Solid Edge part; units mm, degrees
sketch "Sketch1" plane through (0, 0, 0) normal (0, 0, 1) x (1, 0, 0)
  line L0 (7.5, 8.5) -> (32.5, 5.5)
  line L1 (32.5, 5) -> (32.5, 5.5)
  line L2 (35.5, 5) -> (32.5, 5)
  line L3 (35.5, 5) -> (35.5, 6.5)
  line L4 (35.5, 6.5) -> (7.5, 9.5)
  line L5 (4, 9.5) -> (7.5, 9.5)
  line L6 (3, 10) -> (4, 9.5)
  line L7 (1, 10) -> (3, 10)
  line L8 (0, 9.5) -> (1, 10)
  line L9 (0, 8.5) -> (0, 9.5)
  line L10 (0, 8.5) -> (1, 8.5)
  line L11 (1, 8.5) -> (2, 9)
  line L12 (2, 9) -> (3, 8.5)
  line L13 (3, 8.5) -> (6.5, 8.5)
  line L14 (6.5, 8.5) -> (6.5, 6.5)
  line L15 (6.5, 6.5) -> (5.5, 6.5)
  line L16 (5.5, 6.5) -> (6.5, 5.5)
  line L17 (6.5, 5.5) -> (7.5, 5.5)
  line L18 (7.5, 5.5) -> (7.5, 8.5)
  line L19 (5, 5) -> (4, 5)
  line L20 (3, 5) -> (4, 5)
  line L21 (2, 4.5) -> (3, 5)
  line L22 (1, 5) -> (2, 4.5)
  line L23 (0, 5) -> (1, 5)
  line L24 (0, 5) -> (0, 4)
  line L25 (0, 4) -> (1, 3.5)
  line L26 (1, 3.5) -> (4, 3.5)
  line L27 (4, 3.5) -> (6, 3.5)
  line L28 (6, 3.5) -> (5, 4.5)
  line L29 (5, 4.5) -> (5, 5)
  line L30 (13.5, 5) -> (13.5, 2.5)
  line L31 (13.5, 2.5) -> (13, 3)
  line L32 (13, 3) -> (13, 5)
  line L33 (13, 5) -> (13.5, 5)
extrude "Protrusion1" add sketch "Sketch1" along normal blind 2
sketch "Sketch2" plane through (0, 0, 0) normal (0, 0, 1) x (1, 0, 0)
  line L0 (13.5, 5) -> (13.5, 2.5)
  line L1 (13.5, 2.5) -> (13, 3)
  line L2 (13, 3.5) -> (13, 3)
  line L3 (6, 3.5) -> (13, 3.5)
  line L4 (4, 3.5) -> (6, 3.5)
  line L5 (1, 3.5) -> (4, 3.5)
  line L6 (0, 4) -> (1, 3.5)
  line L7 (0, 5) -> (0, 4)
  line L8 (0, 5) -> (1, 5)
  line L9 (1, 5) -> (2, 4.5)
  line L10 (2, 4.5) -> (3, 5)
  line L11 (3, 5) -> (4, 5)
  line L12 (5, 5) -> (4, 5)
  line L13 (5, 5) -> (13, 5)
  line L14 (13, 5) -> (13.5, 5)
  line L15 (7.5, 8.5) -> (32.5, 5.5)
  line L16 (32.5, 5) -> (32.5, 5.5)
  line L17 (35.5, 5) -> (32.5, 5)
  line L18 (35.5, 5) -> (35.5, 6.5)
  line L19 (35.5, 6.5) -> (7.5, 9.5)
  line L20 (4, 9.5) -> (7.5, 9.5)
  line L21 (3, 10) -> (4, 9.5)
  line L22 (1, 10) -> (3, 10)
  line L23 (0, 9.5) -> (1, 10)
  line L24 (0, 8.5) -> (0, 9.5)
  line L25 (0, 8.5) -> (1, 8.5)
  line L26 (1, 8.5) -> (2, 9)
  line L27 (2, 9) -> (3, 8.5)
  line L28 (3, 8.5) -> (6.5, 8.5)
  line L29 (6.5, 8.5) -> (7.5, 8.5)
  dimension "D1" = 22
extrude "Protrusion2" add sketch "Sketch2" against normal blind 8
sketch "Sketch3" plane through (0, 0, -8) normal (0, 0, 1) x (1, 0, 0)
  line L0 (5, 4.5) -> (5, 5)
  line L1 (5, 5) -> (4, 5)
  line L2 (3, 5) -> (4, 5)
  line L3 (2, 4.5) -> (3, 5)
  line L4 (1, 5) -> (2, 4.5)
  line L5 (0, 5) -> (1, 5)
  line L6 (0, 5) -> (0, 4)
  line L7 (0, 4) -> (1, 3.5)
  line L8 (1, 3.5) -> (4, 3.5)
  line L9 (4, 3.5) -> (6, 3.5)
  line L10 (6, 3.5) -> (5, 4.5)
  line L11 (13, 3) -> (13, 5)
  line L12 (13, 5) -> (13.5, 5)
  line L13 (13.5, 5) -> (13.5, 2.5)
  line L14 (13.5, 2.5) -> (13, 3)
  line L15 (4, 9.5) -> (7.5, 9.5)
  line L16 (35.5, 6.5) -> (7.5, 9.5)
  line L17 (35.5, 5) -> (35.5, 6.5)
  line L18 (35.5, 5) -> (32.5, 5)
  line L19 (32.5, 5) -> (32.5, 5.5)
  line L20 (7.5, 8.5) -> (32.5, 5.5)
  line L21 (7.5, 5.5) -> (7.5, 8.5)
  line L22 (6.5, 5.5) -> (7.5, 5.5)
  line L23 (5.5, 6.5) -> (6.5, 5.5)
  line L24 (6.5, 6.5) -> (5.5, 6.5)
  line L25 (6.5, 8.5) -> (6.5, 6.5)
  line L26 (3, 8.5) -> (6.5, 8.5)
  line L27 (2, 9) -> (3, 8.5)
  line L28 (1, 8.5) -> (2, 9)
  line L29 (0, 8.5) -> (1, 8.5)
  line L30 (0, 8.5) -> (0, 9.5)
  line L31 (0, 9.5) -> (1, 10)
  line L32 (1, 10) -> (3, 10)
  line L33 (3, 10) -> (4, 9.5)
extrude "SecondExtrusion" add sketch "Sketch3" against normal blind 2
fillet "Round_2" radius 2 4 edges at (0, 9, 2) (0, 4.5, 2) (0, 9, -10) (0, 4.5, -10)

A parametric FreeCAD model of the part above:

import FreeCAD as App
import Part
import Sketcher
Q = App.Units.Quantity


def edges_at(feature, points):
    """Names of the edges that pass closest to the given points."""
    edges = feature.Shape.Edges
    near = lambda p: min(range(len(edges)), key=lambda i: edges[i].distToShape(Part.Vertex(*p))[0])
    return sorted({f"Edge{near(p) + 1}" for p in points})

doc = App.newDocument("Part")
params = doc.addObject("Spreadsheet::Sheet", "Params")
for row, (alias, value) in enumerate([
    ("sketch1_width", "3 mm"),
    ("sketch1_width2", "3.5 mm"),
    ("sketch1_width3", "0.5 mm"),
    ("pad1_length", "2 mm"),
    ("sketch2_width", "1 mm"),
    ("sketch2_width2", "12 mm"),
    ("sketch2_width3", "3 mm"),
    ("sketch2_width4", "10.5 mm"),
    ("sketch2_width5", "4.5 mm"),
    ("pad2_length", "8 mm"),
    ("sketch3_width", "2 mm"),
    ("sketch3_width2", "0.5 mm"),
    ("sketch3_width3", "3.5 mm"),
    ("pad3_length", "2 mm"),
    ("fillet_radius", "2 mm"),
], start=1):
    params.set(f"A{row}", alias)
    params.set(f"B{row}", "=" + value)
    params.setAlias(f"B{row}", alias)

body = doc.addObject("PartDesign::Body", "Body")
body.AllowCompound = True

# Sketch on XY plane
sketch1 = body.newObject("Sketcher::SketchObject", "Sketch")
sketch1.AttachmentSupport = (doc.getObject("XY_Plane"), [""])
sketch1.MapMode = "FlatFace"
sketch1.addGeometry([
    Part.LineSegment(App.Vector(7.5, 5.5, 0), App.Vector(7.5, 8.5, 0)),  # 0
    Part.LineSegment(App.Vector(7.5, 8.5, 0), App.Vector(32.5, 5.5, 0)),  # 1
    Part.LineSegment(App.Vector(32.5, 5.5, 0), App.Vector(32.5, 5, 0)),  # 2
    Part.LineSegment(App.Vector(32.5, 5, 0), App.Vector(35.5, 5, 0)),  # 3
    Part.LineSegment(App.Vector(35.5, 5, 0), App.Vector(35.5, 6.5, 0)),  # 4
    Part.LineSegment(App.Vector(35.5, 6.5, 0), App.Vector(7.5, 9.5, 0)),  # 5
    Part.LineSegment(App.Vector(7.5, 9.5, 0), App.Vector(4, 9.5, 0)),  # 6
    Part.LineSegment(App.Vector(4, 9.5, 0), App.Vector(3, 10, 0)),  # 7
    Part.LineSegment(App.Vector(3, 10, 0), App.Vector(1, 10, 0)),  # 8
    Part.LineSegment(App.Vector(1, 10, 0), App.Vector(0, 9.5, 0)),  # 9
    Part.LineSegment(App.Vector(0, 9.5, 0), App.Vector(0, 8.5, 0)),  # 10
    Part.LineSegment(App.Vector(0, 8.5, 0), App.Vector(1, 8.5, 0)),  # 11
    Part.LineSegment(App.Vector(1, 8.5, 0), App.Vector(2, 9, 0)),  # 12
    Part.LineSegment(App.Vector(2, 9, 0), App.Vector(3, 8.5, 0)),  # 13
    Part.LineSegment(App.Vector(3, 8.5, 0), App.Vector(6.5, 8.5, 0)),  # 14
    Part.LineSegment(App.Vector(6.5, 8.5, 0), App.Vector(6.5, 6.5, 0)),  # 15
    Part.LineSegment(App.Vector(6.5, 6.5, 0), App.Vector(5.5, 6.5, 0)),  # 16
    Part.LineSegment(App.Vector(5.5, 6.5, 0), App.Vector(6.5, 5.5, 0)),  # 17
    Part.LineSegment(App.Vector(6.5, 5.5, 0), App.Vector(7.5, 5.5, 0)),  # 18
    Part.LineSegment(App.Vector(5, 4.5, 0), App.Vector(5, 5, 0)),  # 19
    Part.LineSegment(App.Vector(5, 5, 0), App.Vector(3, 5, 0)),  # 20
    Part.LineSegment(App.Vector(3, 5, 0), App.Vector(2, 4.5, 0)),  # 21
    Part.LineSegment(App.Vector(2, 4.5, 0), App.Vector(1, 5, 0)),  # 22
    Part.LineSegment(App.Vector(1, 5, 0), App.Vector(0, 5, 0)),  # 23
    Part.LineSegment(App.Vector(0, 5, 0), App.Vector(0, 4, 0)),  # 24
    Part.LineSegment(App.Vector(0, 4, 0), App.Vector(1, 3.5, 0)),  # 25
    Part.LineSegment(App.Vector(1, 3.5, 0), App.Vector(6, 3.5, 0)),  # 26
    Part.LineSegment(App.Vector(6, 3.5, 0), App.Vector(5, 4.5, 0)),  # 27
    Part.LineSegment(App.Vector(13.5, 2.5, 0), App.Vector(13.5, 5, 0)),  # 28
    Part.LineSegment(App.Vector(13.5, 5, 0), App.Vector(13, 5, 0)),  # 29
    Part.LineSegment(App.Vector(13, 5, 0), App.Vector(13, 3, 0)),  # 30
    Part.LineSegment(App.Vector(13, 3, 0), App.Vector(13.5, 2.5, 0)),  # 31
], False)
sketch1.addConstraint([
    Sketcher.Constraint("Coincident", 0, 2, 1, 1),
    Sketcher.Constraint("Coincident", 1, 2, 2, 1),
    Sketcher.Constraint("Coincident", 2, 2, 3, 1),
    Sketcher.Constraint("Coincident", 3, 2, 4, 1),
    Sketcher.Constraint("Coincident", 4, 2, 5, 1),
    Sketcher.Constraint("Coincident", 5, 2, 6, 1),
    Sketcher.Constraint("Coincident", 6, 2, 7, 1),
    Sketcher.Constraint("Coincident", 7, 2, 8, 1),
    Sketcher.Constraint("Coincident", 8, 2, 9, 1),
    Sketcher.Constraint("Coincident", 9, 2, 10, 1),
    Sketcher.Constraint("Coincident", 10, 2, 11, 1),
    Sketcher.Constraint("Coincident", 11, 2, 12, 1),
    Sketcher.Constraint("Coincident", 12, 2, 13, 1),
    Sketcher.Constraint("Coincident", 13, 2, 14, 1),
    Sketcher.Constraint("Coincident", 14, 2, 15, 1),
    Sketcher.Constraint("Coincident", 15, 2, 16, 1),
    Sketcher.Constraint("Coincident", 16, 2, 17, 1),
    Sketcher.Constraint("Coincident", 17, 2, 18, 1),
    Sketcher.Constraint("Coincident", 18, 2, 0, 1),
    Sketcher.Constraint("Coincident", 19, 2, 20, 1),
    Sketcher.Constraint("Coincident", 20, 2, 21, 1),
    Sketcher.Constraint("Coincident", 21, 2, 22, 1),
    Sketcher.Constraint("Coincident", 22, 2, 23, 1),
    Sketcher.Constraint("Coincident", 23, 2, 24, 1),
    Sketcher.Constraint("Coincident", 24, 2, 25, 1),
    Sketcher.Constraint("Coincident", 25, 2, 26, 1),
    Sketcher.Constraint("Coincident", 26, 2, 27, 1),
    Sketcher.Constraint("Coincident", 27, 2, 19, 1),
    Sketcher.Constraint("Coincident", 28, 2, 29, 1),
    Sketcher.Constraint("Coincident", 29, 2, 30, 1),
    Sketcher.Constraint("Coincident", 30, 2, 31, 1),
    Sketcher.Constraint("Coincident", 31, 2, 28, 1),
    Sketcher.Constraint("Vertical", 0),
    Sketcher.Constraint("Vertical", 2),
    Sketcher.Constraint("Horizontal", 3),
    Sketcher.Constraint("Vertical", 4),
    Sketcher.Constraint("Horizontal", 6),
    Sketcher.Constraint("Horizontal", 8),
    Sketcher.Constraint("Vertical", 10),
    Sketcher.Constraint("Horizontal", 11),
    Sketcher.Constraint("Horizontal", 14),
    Sketcher.Constraint("Vertical", 15),
    Sketcher.Constraint("Horizontal", 16),
    Sketcher.Constraint("Horizontal", 18),
    Sketcher.Constraint("Vertical", 19),
    Sketcher.Constraint("Horizontal", 20),
    Sketcher.Constraint("Horizontal", 23),
    Sketcher.Constraint("Vertical", 24),
    Sketcher.Constraint("Horizontal", 26),
    Sketcher.Constraint("Vertical", 28),
    Sketcher.Constraint("Horizontal", 29),
    Sketcher.Constraint("Vertical", 30),
    Sketcher.Constraint("PointOnObject", 9, 2, -2),
    Sketcher.Constraint("PointOnObject", 23, 2, -2),
    Sketcher.Constraint("Parallel", 9, 12),
    Sketcher.Constraint("Parallel", 7, 13),
    Sketcher.Constraint("Parallel", 12, 21),
    Sketcher.Constraint("Parallel", 13, 22),
    Sketcher.Constraint("Parallel", 22, 25),
    Sketcher.Constraint("Parallel", 17, 27),
    Sketcher.Constraint("Parallel", 27, 31),
    Sketcher.Constraint("Horizontal", 6, 2, 9, 2),
    Sketcher.Constraint("Horizontal", 0, 2, 10, 2),
    Sketcher.Constraint("Horizontal", 11, 2, 13, 2),
    Sketcher.Constraint("Horizontal", 4, 2, 15, 2),
    Sketcher.Constraint("Horizontal", 1, 2, 17, 2),
    Sketcher.Constraint("Horizontal", 3, 2, 19, 2),
    Sketcher.Constraint("Horizontal", 20, 2, 22, 2),
    Sketcher.Constraint("Horizontal", 21, 2, 27, 2),
    Sketcher.Constraint("Horizontal", 23, 2, 28, 2),
    Sketcher.Constraint("Vertical", 0, 2, 5, 2),
    Sketcher.Constraint("Vertical", 8, 2, 11, 2),
    Sketcher.Constraint("Vertical", 7, 2, 13, 2),
    Sketcher.Constraint("Vertical", 15, 2, 17, 2),
    Sketcher.Constraint("Vertical", 13, 2, 20, 2),
    Sketcher.Constraint("Vertical", 12, 2, 21, 2),
    Sketcher.Constraint("Vertical", 11, 2, 22, 2),
    Sketcher.Constraint("Vertical", 22, 2, 25, 2),
    Sketcher.Constraint("Equal", 6, 14),
    Sketcher.Constraint("Equal", 11, 16),
    Sketcher.Constraint("Equal", 8, 20),
    Sketcher.Constraint("Equal", 3, 0),
    Sketcher.Constraint("Equal", 29, 2),
    Sketcher.Constraint("Equal", 23, 10),
    Sketcher.Constraint("Equal", 20, 15),
    Sketcher.Constraint("Equal", 2, 19),
    Sketcher.Constraint("Equal", 10, 24),
    Sketcher.Constraint("Equal", 15, 30),
    Sketcher.Constraint("Equal", 9, 12),
    Sketcher.Constraint("Equal", 17, 27),
    Sketcher.Constraint("DistanceX", 3, 1, 3, 2, 3.0),
    Sketcher.Constraint("DistanceX", 6, 2, 6, 1, 3.5),
    Sketcher.Constraint("DistanceX", 29, 2, 29, 1, 0.5),
    Sketcher.Constraint("DistanceY", -1, 1, 2, 2, 5.0),
    Sketcher.Constraint("DistanceX", -1, 1, 29, 2, 13.0),
    Sketcher.Constraint("DistanceX", 0, 2, 1, 2, 25.0),
])
sketch1.setExpression("Constraints[90]", "Params.sketch1_width")
sketch1.setExpression("Constraints[91]", "Params.sketch1_width2")
sketch1.setExpression("Constraints[92]", "Params.sketch1_width3")
pad1 = body.newObject("PartDesign::Pad", "Pad")
pad1.Profile = sketch1
pad1.setExpression("Length", "Params.pad1_length")

# Sketch on XY plane
sketch2 = body.newObject("Sketcher::SketchObject", "Sketch001")
sketch2.AttachmentSupport = (doc.getObject("XY_Plane"), [""])
sketch2.MapMode = "FlatFace"
sketch2.addGeometry([
    Part.LineSegment(App.Vector(13.5, 2.5, 0), App.Vector(13.5, 5, 0)),  # 0
    Part.LineSegment(App.Vector(13.5, 5, 0), App.Vector(3, 5, 0)),  # 1
    Part.LineSegment(App.Vector(3, 5, 0), App.Vector(2, 4.5, 0)),  # 2
    Part.LineSegment(App.Vector(2, 4.5, 0), App.Vector(1, 5, 0)),  # 3
    Part.LineSegment(App.Vector(1, 5, 0), App.Vector(0, 5, 0)),  # 4
    Part.LineSegment(App.Vector(0, 5, 0), App.Vector(0, 4, 0)),  # 5
    Part.LineSegment(App.Vector(0, 4, 0), App.Vector(1, 3.5, 0)),  # 6
    Part.LineSegment(App.Vector(1, 3.5, 0), App.Vector(13, 3.5, 0)),  # 7
    Part.LineSegment(App.Vector(13, 3.5, 0), App.Vector(13, 3, 0)),  # 8
    Part.LineSegment(App.Vector(13, 3, 0), App.Vector(13.5, 2.5, 0)),  # 9
    Part.LineSegment(App.Vector(3, 8.5, 0), App.Vector(7.5, 8.5, 0)),  # 10
    Part.LineSegment(App.Vector(7.5, 8.5, 0), App.Vector(32.5, 5.5, 0)),  # 11
    Part.LineSegment(App.Vector(32.5, 5.5, 0), App.Vector(32.5, 5, 0)),  # 12
    Part.LineSegment(App.Vector(32.5, 5, 0), App.Vector(35.5, 5, 0)),  # 13
    Part.LineSegment(App.Vector(35.5, 5, 0), App.Vector(35.5, 6.5, 0)),  # 14
    Part.LineSegment(App.Vector(35.5, 6.5, 0), App.Vector(7.5, 9.5, 0)),  # 15
    Part.LineSegment(App.Vector(7.5, 9.5, 0), App.Vector(4, 9.5, 0)),  # 16
    Part.LineSegment(App.Vector(4, 9.5, 0), App.Vector(3, 10, 0)),  # 17
    Part.LineSegment(App.Vector(3, 10, 0), App.Vector(1, 10, 0)),  # 18
    Part.LineSegment(App.Vector(1, 10, 0), App.Vector(0, 9.5, 0)),  # 19
    Part.LineSegment(App.Vector(0, 9.5, 0), App.Vector(0, 8.5, 0)),  # 20
    Part.LineSegment(App.Vector(0, 8.5, 0), App.Vector(1, 8.5, 0)),  # 21
    Part.LineSegment(App.Vector(1, 8.5, 0), App.Vector(2, 9, 0)),  # 22
    Part.LineSegment(App.Vector(2, 9, 0), App.Vector(3, 8.5, 0)),  # 23
], False)
sketch2.addConstraint([
    Sketcher.Constraint("Coincident", 0, 2, 1, 1),
    Sketcher.Constraint("Coincident", 1, 2, 2, 1),
    Sketcher.Constraint("Coincident", 2, 2, 3, 1),
    Sketcher.Constraint("Coincident", 3, 2, 4, 1),
    Sketcher.Constraint("Coincident", 4, 2, 5, 1),
    Sketcher.Constraint("Coincident", 5, 2, 6, 1),
    Sketcher.Constraint("Coincident", 6, 2, 7, 1),
    Sketcher.Constraint("Coincident", 7, 2, 8, 1),
    Sketcher.Constraint("Coincident", 8, 2, 9, 1),
    Sketcher.Constraint("Coincident", 9, 2, 0, 1),
    Sketcher.Constraint("Coincident", 10, 2, 11, 1),
    Sketcher.Constraint("Coincident", 11, 2, 12, 1),
    Sketcher.Constraint("Coincident", 12, 2, 13, 1),
    Sketcher.Constraint("Coincident", 13, 2, 14, 1),
    Sketcher.Constraint("Coincident", 14, 2, 15, 1),
    Sketcher.Constraint("Coincident", 15, 2, 16, 1),
    Sketcher.Constraint("Coincident", 16, 2, 17, 1),
    Sketcher.Constraint("Coincident", 17, 2, 18, 1),
    Sketcher.Constraint("Coincident", 18, 2, 19, 1),
    Sketcher.Constraint("Coincident", 19, 2, 20, 1),
    Sketcher.Constraint("Coincident", 20, 2, 21, 1),
    Sketcher.Constraint("Coincident", 21, 2, 22, 1),
    Sketcher.Constraint("Coincident", 22, 2, 23, 1),
    Sketcher.Constraint("Coincident", 23, 2, 10, 1),
    Sketcher.Constraint("Vertical", 0),
    Sketcher.Constraint("Horizontal", 1),
    Sketcher.Constraint("Horizontal", 4),
    Sketcher.Constraint("Vertical", 5),
    Sketcher.Constraint("Horizontal", 7),
    Sketcher.Constraint("Vertical", 8),
    Sketcher.Constraint("Horizontal", 10),
    Sketcher.Constraint("Vertical", 12),
    Sketcher.Constraint("Horizontal", 13),
    Sketcher.Constraint("Vertical", 14),
    Sketcher.Constraint("Horizontal", 16),
    Sketcher.Constraint("Horizontal", 18),
    Sketcher.Constraint("Vertical", 20),
    Sketcher.Constraint("Horizontal", 21),
    Sketcher.Constraint("PointOnObject", 4, 2, -2),
    Sketcher.Constraint("PointOnObject", 19, 2, -2),
    Sketcher.Constraint("Parallel", 3, 6),
    Sketcher.Constraint("Parallel", 6, 17),
    Sketcher.Constraint("Parallel", 2, 19),
    Sketcher.Constraint("Parallel", 19, 22),
    Sketcher.Constraint("Parallel", 17, 23),
    Sketcher.Constraint("Horizontal", 1, 2, 3, 2),
    Sketcher.Constraint("Horizontal", 4, 2, 12, 2),
    Sketcher.Constraint("Horizontal", 16, 2, 19, 2),
    Sketcher.Constraint("Horizontal", 10, 2, 20, 2),
    Sketcher.Constraint("Vertical", 3, 2, 6, 2),
    Sketcher.Constraint("Vertical", 10, 2, 15, 2),
    Sketcher.Constraint("Vertical", 1, 2, 17, 2),
    Sketcher.Constraint("Vertical", 6, 2, 18, 2),
    Sketcher.Constraint("Vertical", 18, 2, 21, 2),
    Sketcher.Constraint("Vertical", 2, 2, 22, 2),
    Sketcher.Constraint("Vertical", 17, 2, 23, 2),
    Sketcher.Constraint("Equal", 21, 5),
    Sketcher.Constraint("Equal", 8, 12),
    Sketcher.Constraint("Equal", 5, 20),
    Sketcher.Constraint("Equal", 3, 6),
    Sketcher.Constraint("DistanceX", 4, 2, 4, 1, 1.0),
    Sketcher.Constraint("DistanceX", 7, 1, 7, 2, 12.0),
    Sketcher.Constraint("DistanceX", 13, 1, 13, 2, 3.0),
    Sketcher.Constraint("Angle", 9, Q("-45 deg")),
    Sketcher.Constraint("DistanceX", 1, 2, 1, 1, 10.5),
    Sketcher.Constraint("DistanceX", 10, 1, 10, 2, 4.5),
    Sketcher.Constraint("DistanceY", 0, 1, 0, 2, 2.5),
    Sketcher.Constraint("DistanceY", 8, 2, 8, 1, 0.5),
    Sketcher.Constraint("DistanceY", 14, 1, 14, 2, 1.5),
    Sketcher.Constraint("DistanceY", -1, 1, 0, 2, 5.0),
    Sketcher.Constraint("DistanceY", -1, 1, 17, 2, 10.0),
    Sketcher.Constraint("DistanceX", 0, 2, 11, 2, 19.0),
])
sketch2.setExpression("Constraints[60]", "Params.sketch2_width")
sketch2.setExpression("Constraints[61]", "Params.sketch2_width2")
sketch2.setExpression("Constraints[62]", "Params.sketch2_width3")
sketch2.setExpression("Constraints[64]", "Params.sketch2_width4")
sketch2.setExpression("Constraints[65]", "Params.sketch2_width5")
pad2 = body.newObject("PartDesign::Pad", "Pad001")
pad2.Profile = sketch2
pad2.setExpression("Length", "Params.pad2_length")
pad2.Reversed = True

# Sketch on XY plane
sketch3 = body.newObject("Sketcher::SketchObject", "Sketch002")
sketch3.AttachmentSupport = (doc.getObject("XY_Plane"), [""])
sketch3.MapMode = "FlatFace"
sketch3.AttachmentOffset = App.Placement(App.Vector(0, 0, -8), App.Rotation())
sketch3.addGeometry([
    Part.LineSegment(App.Vector(6, 3.5, 0), App.Vector(5, 4.5, 0)),  # 0
    Part.LineSegment(App.Vector(5, 4.5, 0), App.Vector(5, 5, 0)),  # 1
    Part.LineSegment(App.Vector(5, 5, 0), App.Vector(3, 5, 0)),  # 2
    Part.LineSegment(App.Vector(3, 5, 0), App.Vector(2, 4.5, 0)),  # 3
    Part.LineSegment(App.Vector(2, 4.5, 0), App.Vector(1, 5, 0)),  # 4
    Part.LineSegment(App.Vector(1, 5, 0), App.Vector(0, 5, 0)),  # 5
    Part.LineSegment(App.Vector(0, 5, 0), App.Vector(0, 4, 0)),  # 6
    Part.LineSegment(App.Vector(0, 4, 0), App.Vector(1, 3.5, 0)),  # 7
    Part.LineSegment(App.Vector(1, 3.5, 0), App.Vector(6, 3.5, 0)),  # 8
    Part.LineSegment(App.Vector(13, 5, 0), App.Vector(13, 3, 0)),  # 9
    Part.LineSegment(App.Vector(13, 3, 0), App.Vector(13.5, 2.5, 0)),  # 10
    Part.LineSegment(App.Vector(13.5, 2.5, 0), App.Vector(13.5, 5, 0)),  # 11
    Part.LineSegment(App.Vector(13.5, 5, 0), App.Vector(13, 5, 0)),  # 12
    Part.LineSegment(App.Vector(7.5, 9.5, 0), App.Vector(4, 9.5, 0)),  # 13
    Part.LineSegment(App.Vector(4, 9.5, 0), App.Vector(3, 10, 0)),  # 14
    Part.LineSegment(App.Vector(3, 10, 0), App.Vector(1, 10, 0)),  # 15
    Part.LineSegment(App.Vector(1, 10, 0), App.Vector(0, 9.5, 0)),  # 16
    Part.LineSegment(App.Vector(0, 9.5, 0), App.Vector(0, 8.5, 0)),  # 17
    Part.LineSegment(App.Vector(0, 8.5, 0), App.Vector(1, 8.5, 0)),  # 18
    Part.LineSegment(App.Vector(1, 8.5, 0), App.Vector(2, 9, 0)),  # 19
    Part.LineSegment(App.Vector(2, 9, 0), App.Vector(3, 8.5, 0)),  # 20
    Part.LineSegment(App.Vector(3, 8.5, 0), App.Vector(6.5, 8.5, 0)),  # 21
    Part.LineSegment(App.Vector(6.5, 8.5, 0), App.Vector(6.5, 6.5, 0)),  # 22
    Part.LineSegment(App.Vector(6.5, 6.5, 0), App.Vector(5.5, 6.5, 0)),  # 23
    Part.LineSegment(App.Vector(5.5, 6.5, 0), App.Vector(6.5, 5.5, 0)),  # 24
    Part.LineSegment(App.Vector(6.5, 5.5, 0), App.Vector(7.5, 5.5, 0)),  # 25
    Part.LineSegment(App.Vector(7.5, 5.5, 0), App.Vector(7.5, 8.5, 0)),  # 26
    Part.LineSegment(App.Vector(7.5, 8.5, 0), App.Vector(32.5, 5.5, 0)),  # 27
    Part.LineSegment(App.Vector(32.5, 5.5, 0), App.Vector(32.5, 5, 0)),  # 28
    Part.LineSegment(App.Vector(32.5, 5, 0), App.Vector(35.5, 5, 0)),  # 29
    Part.LineSegment(App.Vector(35.5, 5, 0), App.Vector(35.5, 6.5, 0)),  # 30
    Part.LineSegment(App.Vector(35.5, 6.5, 0), App.Vector(7.5, 9.5, 0)),  # 31
], False)
sketch3.addConstraint([
    Sketcher.Constraint("Coincident", 0, 2, 1, 1),
    Sketcher.Constraint("Coincident", 1, 2, 2, 1),
    Sketcher.Constraint("Coincident", 2, 2, 3, 1),
    Sketcher.Constraint("Coincident", 3, 2, 4, 1),
    Sketcher.Constraint("Coincident", 4, 2, 5, 1),
    Sketcher.Constraint("Coincident", 5, 2, 6, 1),
    Sketcher.Constraint("Coincident", 6, 2, 7, 1),
    Sketcher.Constraint("Coincident", 7, 2, 8, 1),
    Sketcher.Constraint("Coincident", 8, 2, 0, 1),
    Sketcher.Constraint("Coincident", 9, 2, 10, 1),
    Sketcher.Constraint("Coincident", 10, 2, 11, 1),
    Sketcher.Constraint("Coincident", 11, 2, 12, 1),
    Sketcher.Constraint("Coincident", 12, 2, 9, 1),
    Sketcher.Constraint("Coincident", 13, 2, 14, 1),
    Sketcher.Constraint("Coincident", 14, 2, 15, 1),
    Sketcher.Constraint("Coincident", 15, 2, 16, 1),
    Sketcher.Constraint("Coincident", 16, 2, 17, 1),
    Sketcher.Constraint("Coincident", 17, 2, 18, 1),
    Sketcher.Constraint("Coincident", 18, 2, 19, 1),
    Sketcher.Constraint("Coincident", 19, 2, 20, 1),
    Sketcher.Constraint("Coincident", 20, 2, 21, 1),
    Sketcher.Constraint("Coincident", 21, 2, 22, 1),
    Sketcher.Constraint("Coincident", 22, 2, 23, 1),
    Sketcher.Constraint("Coincident", 23, 2, 24, 1),
    Sketcher.Constraint("Coincident", 24, 2, 25, 1),
    Sketcher.Constraint("Coincident", 25, 2, 26, 1),
    Sketcher.Constraint("Coincident", 26, 2, 27, 1),
    Sketcher.Constraint("Coincident", 27, 2, 28, 1),
    Sketcher.Constraint("Coincident", 28, 2, 29, 1),
    Sketcher.Constraint("Coincident", 29, 2, 30, 1),
    Sketcher.Constraint("Coincident", 30, 2, 31, 1),
    Sketcher.Constraint("Coincident", 31, 2, 13, 1),
    Sketcher.Constraint("Vertical", 1),
    Sketcher.Constraint("Horizontal", 2),
    Sketcher.Constraint("Horizontal", 5),
    Sketcher.Constraint("Vertical", 6),
    Sketcher.Constraint("Horizontal", 8),
    Sketcher.Constraint("Vertical", 9),
    Sketcher.Constraint("Vertical", 11),
    Sketcher.Constraint("Horizontal", 12),
    Sketcher.Constraint("Horizontal", 13),
    Sketcher.Constraint("Horizontal", 15),
    Sketcher.Constraint("Vertical", 17),
    Sketcher.Constraint("Horizontal", 18),
    Sketcher.Constraint("Horizontal", 21),
    Sketcher.Constraint("Vertical", 22),
    Sketcher.Constraint("Horizontal", 23),
    Sketcher.Constraint("Horizontal", 25),
    Sketcher.Constraint("Vertical", 26),
    Sketcher.Constraint("Vertical", 28),
    Sketcher.Constraint("Horizontal", 29),
    Sketcher.Constraint("Vertical", 30),
    Sketcher.Constraint("PointOnObject", 5, 2, -2),
    Sketcher.Constraint("PointOnObject", 16, 2, -2),
    Sketcher.Constraint("Parallel", 4, 7),
    Sketcher.Constraint("Parallel", 0, 10),
    Sketcher.Constraint("Parallel", 7, 14),
    Sketcher.Constraint("Parallel", 3, 16),
    Sketcher.Constraint("Parallel", 16, 19),
    Sketcher.Constraint("Parallel", 14, 20),
    Sketcher.Constraint("Parallel", 10, 24),
    Sketcher.Constraint("Horizontal", 0, 2, 3, 2),
    Sketcher.Constraint("Horizontal", 2, 2, 4, 2),
    Sketcher.Constraint("Horizontal", 5, 2, 11, 2),
    Sketcher.Constraint("Horizontal", 13, 2, 16, 2),
    Sketcher.Constraint("Horizontal", 18, 2, 20, 2),
    Sketcher.Constraint("Horizontal", 21, 2, 26, 2),
    Sketcher.Constraint("Horizontal", 25, 2, 27, 2),
    Sketcher.Constraint("Horizontal", 12, 2, 28, 2),
    Sketcher.Constraint("Horizontal", 23, 2, 30, 2),
    Sketcher.Constraint("Vertical", 4, 2, 7, 2),
    Sketcher.Constraint("Vertical", 2, 2, 14, 2),
    Sketcher.Constraint("Vertical", 7, 2, 15, 2),
    Sketcher.Constraint("Vertical", 15, 2, 18, 2),
    Sketcher.Constraint("Vertical", 3, 2, 19, 2),
    Sketcher.Constraint("Vertical", 14, 2, 20, 2),
    Sketcher.Constraint("Vertical", 22, 2, 24, 2),
    Sketcher.Constraint("Vertical", 26, 2, 31, 2),
    Sketcher.Constraint("Equal", 2, 15),
    Sketcher.Constraint("Equal", 13, 21),
    Sketcher.Constraint("Equal", 18, 23),
    Sketcher.Constraint("Equal", 12, 1),
    Sketcher.Constraint("Equal", 25, 6),
    Sketcher.Constraint("Equal", 15, 9),
    Sketcher.Constraint("Equal", 6, 17),
    Sketcher.Constraint("Equal", 9, 22),
    Sketcher.Constraint("Equal", 29, 26),
    Sketcher.Constraint("Equal", 1, 28),
    Sketcher.Constraint("Equal", 4, 7),
    Sketcher.Constraint("Equal", 0, 24),
    Sketcher.Constraint("DistanceX", 2, 2, 2, 1, 2.0),
    Sketcher.Constraint("DistanceX", 12, 2, 12, 1, 0.5),
    Sketcher.Constraint("DistanceX", 13, 2, 13, 1, 3.5),
    Sketcher.Constraint("DistanceY", -1, 1, 1, 2, 5.0),
    Sketcher.Constraint("DistanceX", -1, 1, 9, 2, 13.0),
    Sketcher.Constraint("DistanceX", 11, 2, 27, 2, 19.0),
])
sketch3.setExpression("Constraints[90]", "Params.sketch3_width")
sketch3.setExpression("Constraints[91]", "Params.sketch3_width2")
sketch3.setExpression("Constraints[92]", "Params.sketch3_width3")
pad3 = body.newObject("PartDesign::Pad", "Pad002")
pad3.Profile = sketch3
pad3.setExpression("Length", "Params.pad3_length")
pad3.Reversed = True
doc.recompute()

fillet = body.newObject("PartDesign::Fillet", "Fillet")
fillet.Base = (pad3, edges_at(pad3, [
    (0, 9, 2),
    (0, 4.5, 2),
    (0, 9, -10),
    (0, 4.5, -10),
]))
fillet.setExpression("Radius", "Params.fillet_radius")

doc.recompute()
